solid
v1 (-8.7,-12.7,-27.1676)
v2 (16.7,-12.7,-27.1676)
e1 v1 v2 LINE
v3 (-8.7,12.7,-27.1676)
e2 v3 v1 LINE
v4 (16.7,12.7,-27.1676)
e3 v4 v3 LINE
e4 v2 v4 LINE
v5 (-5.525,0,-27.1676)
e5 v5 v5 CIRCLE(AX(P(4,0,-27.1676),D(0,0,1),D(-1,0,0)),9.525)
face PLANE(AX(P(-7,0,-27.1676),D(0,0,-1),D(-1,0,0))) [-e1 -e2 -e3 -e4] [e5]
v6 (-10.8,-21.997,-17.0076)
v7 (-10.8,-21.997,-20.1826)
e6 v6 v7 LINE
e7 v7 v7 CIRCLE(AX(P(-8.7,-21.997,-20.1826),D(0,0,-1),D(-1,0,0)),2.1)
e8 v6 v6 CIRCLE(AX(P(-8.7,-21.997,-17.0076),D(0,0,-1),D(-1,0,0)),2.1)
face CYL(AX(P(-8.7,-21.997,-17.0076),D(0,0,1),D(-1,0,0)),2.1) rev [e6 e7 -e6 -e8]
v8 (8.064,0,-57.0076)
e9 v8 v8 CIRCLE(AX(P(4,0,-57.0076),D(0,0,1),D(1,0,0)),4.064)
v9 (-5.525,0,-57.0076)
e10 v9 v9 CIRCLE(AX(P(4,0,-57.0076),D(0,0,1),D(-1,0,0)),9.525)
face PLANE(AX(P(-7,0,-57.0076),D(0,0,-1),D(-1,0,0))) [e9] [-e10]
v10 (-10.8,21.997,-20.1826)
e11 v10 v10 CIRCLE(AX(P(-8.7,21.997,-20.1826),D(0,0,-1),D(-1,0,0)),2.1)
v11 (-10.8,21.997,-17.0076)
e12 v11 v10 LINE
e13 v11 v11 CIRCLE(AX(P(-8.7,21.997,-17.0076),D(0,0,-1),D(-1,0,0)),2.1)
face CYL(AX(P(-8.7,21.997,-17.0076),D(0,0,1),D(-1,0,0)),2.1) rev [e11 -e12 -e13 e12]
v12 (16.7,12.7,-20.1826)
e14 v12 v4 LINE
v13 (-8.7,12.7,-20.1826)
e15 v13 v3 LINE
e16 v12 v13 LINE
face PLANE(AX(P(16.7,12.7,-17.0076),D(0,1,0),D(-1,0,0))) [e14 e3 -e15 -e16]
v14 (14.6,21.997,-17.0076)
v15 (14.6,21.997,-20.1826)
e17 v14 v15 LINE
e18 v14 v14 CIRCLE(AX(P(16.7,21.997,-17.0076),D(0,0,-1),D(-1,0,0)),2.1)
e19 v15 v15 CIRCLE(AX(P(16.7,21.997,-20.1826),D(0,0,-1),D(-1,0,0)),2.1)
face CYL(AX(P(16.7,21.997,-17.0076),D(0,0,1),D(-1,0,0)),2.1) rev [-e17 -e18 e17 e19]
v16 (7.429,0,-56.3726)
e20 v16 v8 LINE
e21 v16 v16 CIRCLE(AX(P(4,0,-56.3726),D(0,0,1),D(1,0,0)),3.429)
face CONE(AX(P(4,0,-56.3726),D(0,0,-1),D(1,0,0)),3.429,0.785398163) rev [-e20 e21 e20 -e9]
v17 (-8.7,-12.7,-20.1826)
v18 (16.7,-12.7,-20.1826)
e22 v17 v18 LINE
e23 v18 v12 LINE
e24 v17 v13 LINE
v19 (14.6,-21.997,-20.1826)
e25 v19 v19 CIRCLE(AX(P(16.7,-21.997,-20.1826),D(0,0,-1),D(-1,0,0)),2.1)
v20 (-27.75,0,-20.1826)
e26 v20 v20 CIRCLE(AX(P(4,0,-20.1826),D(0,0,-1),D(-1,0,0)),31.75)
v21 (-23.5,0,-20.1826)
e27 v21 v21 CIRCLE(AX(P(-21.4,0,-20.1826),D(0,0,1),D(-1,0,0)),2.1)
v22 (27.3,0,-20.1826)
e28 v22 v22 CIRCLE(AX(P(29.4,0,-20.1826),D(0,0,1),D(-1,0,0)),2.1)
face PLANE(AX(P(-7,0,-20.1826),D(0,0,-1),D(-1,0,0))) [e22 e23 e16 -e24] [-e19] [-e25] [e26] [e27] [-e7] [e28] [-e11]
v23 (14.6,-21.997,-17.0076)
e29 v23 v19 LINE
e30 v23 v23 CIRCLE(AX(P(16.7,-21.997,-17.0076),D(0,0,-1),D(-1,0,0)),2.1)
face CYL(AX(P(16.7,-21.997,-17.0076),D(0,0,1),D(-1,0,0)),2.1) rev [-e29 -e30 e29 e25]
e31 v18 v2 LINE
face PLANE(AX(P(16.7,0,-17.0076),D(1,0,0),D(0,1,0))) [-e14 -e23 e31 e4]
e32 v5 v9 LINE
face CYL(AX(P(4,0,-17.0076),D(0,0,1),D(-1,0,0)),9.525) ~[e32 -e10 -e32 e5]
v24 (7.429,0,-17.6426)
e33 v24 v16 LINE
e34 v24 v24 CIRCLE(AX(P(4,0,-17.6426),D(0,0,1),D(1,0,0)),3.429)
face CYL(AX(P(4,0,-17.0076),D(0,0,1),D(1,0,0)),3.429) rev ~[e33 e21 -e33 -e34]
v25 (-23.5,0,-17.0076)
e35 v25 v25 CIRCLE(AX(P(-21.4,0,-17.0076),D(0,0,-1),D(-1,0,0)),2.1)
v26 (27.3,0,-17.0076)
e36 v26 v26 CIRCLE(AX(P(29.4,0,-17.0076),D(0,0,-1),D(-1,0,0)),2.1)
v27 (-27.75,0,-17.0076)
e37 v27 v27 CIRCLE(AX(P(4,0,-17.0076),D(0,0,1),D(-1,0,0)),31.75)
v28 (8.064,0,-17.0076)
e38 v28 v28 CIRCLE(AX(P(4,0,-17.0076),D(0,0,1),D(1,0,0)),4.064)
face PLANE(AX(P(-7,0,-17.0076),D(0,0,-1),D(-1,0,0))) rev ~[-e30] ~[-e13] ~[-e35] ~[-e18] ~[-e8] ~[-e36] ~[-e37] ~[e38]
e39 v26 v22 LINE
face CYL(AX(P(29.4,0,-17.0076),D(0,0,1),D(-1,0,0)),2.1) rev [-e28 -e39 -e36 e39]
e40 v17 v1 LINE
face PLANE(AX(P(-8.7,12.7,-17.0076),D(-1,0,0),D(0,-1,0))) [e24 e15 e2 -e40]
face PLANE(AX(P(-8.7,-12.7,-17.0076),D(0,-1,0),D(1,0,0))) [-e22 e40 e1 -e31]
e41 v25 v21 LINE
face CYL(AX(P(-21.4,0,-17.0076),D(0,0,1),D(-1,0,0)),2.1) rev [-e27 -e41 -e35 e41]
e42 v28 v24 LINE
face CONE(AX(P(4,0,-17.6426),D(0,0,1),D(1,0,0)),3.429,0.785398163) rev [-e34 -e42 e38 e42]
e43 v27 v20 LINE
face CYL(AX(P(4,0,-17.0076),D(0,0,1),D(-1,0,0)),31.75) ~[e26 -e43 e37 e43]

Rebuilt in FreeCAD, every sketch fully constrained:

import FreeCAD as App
import Part
import Sketcher
Q = App.Units.Quantity


def edges_at(feature, points):
    """Names of the edges that pass closest to the given points."""
    edges = feature.Shape.Edges
    near = lambda p: min(range(len(edges)), key=lambda i: edges[i].distToShape(Part.Vertex(*p))[0])
    return sorted({f"Edge{near(p) + 1}" for p in points})

doc = App.newDocument("Part")
body = doc.addObject("PartDesign::Body", "Body")

# Sketch on XY plane
sketch1 = body.newObject("Sketcher::SketchObject", "Sketch")
sketch1.AttachmentSupport = (doc.getObject("XY_Plane"), [""])
sketch1.MapMode = "FlatFace"
sketch1.addGeometry([
    Part.Circle(App.Vector(4, 0, 0), App.Vector(0, 0, 1), 3.9492),
    Part.Circle(App.Vector(4, 0, 0), App.Vector(0, 0, 1), 3.2512),
], False)
sketch1.addConstraint([
    Sketcher.Constraint("Coincident", 1, 3, 0, 3),
    Sketcher.Constraint("PointOnObject", 0, 3, -1),
    Sketcher.Constraint("Diameter", 1, Q("0.256 in")),
    Sketcher.Constraint("Diameter", 0, 7.8984),
    Sketcher.Constraint("DistanceX", -1, 1, 0, 3, 4.0),
])
pad1 = body.newObject("PartDesign::Pad", "Pad")
pad1.Profile = sketch1
pad1.Type = "TwoLengths"
pad1.Length = 15
pad1.Length2 = Q("2.2443937 in")

# Sketch on XY plane
sketch2 = body.newObject("Sketcher::SketchObject", "Sketch001")
sketch2.AttachmentSupport = (doc.getObject("XY_Plane"), [""])
sketch2.MapMode = "FlatFace"
sketch2.AttachmentOffset = App.Placement(App.Vector(0, 0, -0.6695906 * 25.4), App.Rotation())
sketch2.addGeometry(Part.Circle(App.Vector(4, 0, 0), App.Vector(0, 0, 1), 9.525), False)
sketch2.addConstraint([
    Sketcher.Constraint("PointOnObject", 0, 3, -1),
    Sketcher.Constraint("Diameter", 0, Q("0.75 in")),
    Sketcher.Constraint("DistanceX", -1, 1, 0, 3, 4.0),
])
pad2 = body.newObject("PartDesign::Pad", "Pad001")
pad2.Profile = sketch2
pad2.Length = Q("1.5748031 in")
pad2.Reversed = True

# Sketch on XY plane
sketch3 = body.newObject("Sketcher::SketchObject", "Sketch002")
sketch3.AttachmentSupport = (doc.getObject("XY_Plane"), [""])
sketch3.MapMode = "FlatFace"
sketch3.AttachmentOffset = App.Placement(App.Vector(0, 0, -0.6695906 * 25.4), App.Rotation())
sketch3.addGeometry([
    Part.LineSegment(App.Vector(16.7, 12.7, 0), App.Vector(16.7, -12.7, 0)),
    Part.LineSegment(App.Vector(16.7, -12.7, 0), App.Vector(-8.7, -12.7, 0)),
    Part.LineSegment(App.Vector(-8.7, -12.7, 0), App.Vector(-8.7, 12.7, 0)),
    Part.LineSegment(App.Vector(-8.7, 12.7, 0), App.Vector(16.7, 12.7, 0)),
], False)
sketch3.addConstraint([
    Sketcher.Constraint("Coincident", 0, 2, 1, 1),
    Sketcher.Constraint("Coincident", 1, 2, 2, 1),
    Sketcher.Constraint("Coincident", 2, 2, 3, 1),
    Sketcher.Constraint("Coincident", 3, 2, 0, 1),
    Sketcher.Constraint("Vertical", 0),
    Sketcher.Constraint("Horizontal", 1),
    Sketcher.Constraint("Vertical", 2),
    Sketcher.Constraint("Horizontal", 3),
    Sketcher.Constraint("Equal", 3, 0),
    Sketcher.Constraint("DistanceX", 1, 2, 1, 1, Q("1 in")),
    Sketcher.Constraint("DistanceY", 0, 2, -1, 1, Q("0.5 in")),
    Sketcher.Constraint("DistanceX", -1, 1, 0, 2, 16.7),
])
pad3 = body.newObject("PartDesign::Pad", "Pad002")
pad3.Profile = sketch3
pad3.Length = Q("0.4 in")
pad3.Reversed = True

# Sketch on XY plane
sketch4 = body.newObject("Sketcher::SketchObject", "Sketch003")
sketch4.AttachmentSupport = (doc.getObject("XY_Plane"), [""])
sketch4.MapMode = "FlatFace"
sketch4.AttachmentOffset = App.Placement(App.Vector(0, 0, -0.6695906 * 25.4), App.Rotation())
sketch4.addGeometry([
    Part.Circle(App.Vector(4, 0, 0), App.Vector(0, 0, 1), 31.75),  # 0
    Part.LineSegment(App.Vector(-8.7, 12.7, 0), App.Vector(-8.7, -12.7, 0)),  # 1
    Part.LineSegment(App.Vector(-8.7, -12.7, 0), App.Vector(16.7, -12.7, 0)),  # 2
    Part.LineSegment(App.Vector(16.7, -12.7, 0), App.Vector(16.7, 12.7, 0)),  # 3
    Part.LineSegment(App.Vector(16.7, 12.7, 0), App.Vector(-8.7, 12.7, 0)),  # 4
    Part.Circle(App.Vector(29.4, 0, 0), App.Vector(0, 0, 1), 2.1),  # 5
    Part.Circle(App.Vector(-21.4, 0, 0), App.Vector(0, 0, 1), 2.1),  # 6
    Part.Circle(App.Vector(16.7, 21.997, 0), App.Vector(0, 0, 1), 2.1),  # 7
    Part.Circle(App.Vector(-8.7, 21.997, 0), App.Vector(0, 0, 1), 2.1),  # 8
    Part.Circle(App.Vector(16.7, -21.997, 0), App.Vector(0, 0, 1), 2.1),  # 9
    Part.Circle(App.Vector(-8.7, -21.997, 0), App.Vector(0, 0, 1), 2.1),  # 10
], False)
sketch4.addConstraint([
    Sketcher.Constraint("Coincident", 1, 2, 2, 1),
    Sketcher.Constraint("Coincident", 2, 2, 3, 1),
    Sketcher.Constraint("Coincident", 3, 2, 4, 1),
    Sketcher.Constraint("Coincident", 4, 2, 1, 1),
    Sketcher.Constraint("Vertical", 1),
    Sketcher.Constraint("Horizontal", 2),
    Sketcher.Constraint("Vertical", 3),
    Sketcher.Constraint("Horizontal", 4),
    Sketcher.Constraint("Equal", 5, 6),
    Sketcher.Constraint("Equal", 6, 7),
    Sketcher.Constraint("Equal", 7, 8),
    Sketcher.Constraint("Equal", 8, 9),
    Sketcher.Constraint("Equal", 9, 10),
    Sketcher.Constraint("Symmetric", 7, 3, 9, 3, -1),
    Sketcher.Constraint("Symmetric", 8, 3, 10, 3, -1),
    Sketcher.Constraint("PointOnObject", 0, 3, -1),
    Sketcher.Constraint("PointOnObject", 5, 3, -1),
    Sketcher.Constraint("PointOnObject", 6, 3, -1),
    Sketcher.Constraint("Horizontal", 7, 3, 8, 3),
    Sketcher.Constraint("Vertical", 10, 3, 1, 2),
    Sketcher.Constraint("Vertical", 9, 3, 2, 2),
    Sketcher.Constraint("Equal", 4, 1),
    Sketcher.Constraint("Diameter", 0, Q("2.5 in")),
    Sketcher.Constraint("DistanceX", 2, 1, 2, 2, Q("1 in")),
    Sketcher.Constraint("DistanceX", 0, 3, 5, 3, Q("1 in")),
    Sketcher.Constraint("DistanceX", 6, 3, 0, 3, Q("1 in")),
    Sketcher.Constraint("Diameter", 5, 4.2),
    Sketcher.Constraint("DistanceY", 1, 2, -1, 1, Q("0.5 in")),
    Sketcher.Constraint("DistanceX", 0, 3, 7, 3, Q("0.5 in")),
    Sketcher.Constraint("DistanceX", -1, 1, 0, 3, 4.0),
    Sketcher.Constraint("DistanceY", -1, 1, 7, 3, 21.997),
])
pad4 = body.newObject("PartDesign::Pad", "Pad003")
pad4.Profile = sketch4
pad4.Length = Q("0.125 in")
pad4.Reversed = True

# Sketch on XY plane
sketch5 = body.newObject("Sketcher::SketchObject", "Sketch004")
sketch5.AttachmentSupport = (doc.getObject("XY_Plane"), [""])
sketch5.MapMode = "FlatFace"
sketch5.AttachmentOffset = App.Placement(App.Vector(0, 0, 15), App.Rotation())
sketch5.addGeometry([
    Part.LineSegment(App.Vector(-7.6012, -6.9197, 0), App.Vector(12.0047, -6.9197, 0)),
    Part.LineSegment(App.Vector(12.0047, -6.9197, 0), App.Vector(12.0047, 5.9412, 0)),
    Part.LineSegment(App.Vector(12.0047, 5.9412, 0), App.Vector(-7.6012, 5.9412, 0)),
    Part.LineSegment(App.Vector(-7.6012, 5.9412, 0), App.Vector(-7.6012, -6.9197, 0)),
], False)
sketch5.addConstraint([
    Sketcher.Constraint("Coincident", 0, 2, 1, 1),
    Sketcher.Constraint("Coincident", 1, 2, 2, 1),
    Sketcher.Constraint("Coincident", 2, 2, 3, 1),
    Sketcher.Constraint("Coincident", 3, 2, 0, 1),
    Sketcher.Constraint("Horizontal", 0),
    Sketcher.Constraint("Vertical", 1),
    Sketcher.Constraint("Horizontal", 2),
    Sketcher.Constraint("Vertical", 3),
    Sketcher.Constraint("DistanceX", 0, 1, 0, 2, Q("0.7718898 in")),
    Sketcher.Constraint("DistanceY", 1, 1, 1, 2, 12.861),
    Sketcher.Constraint("DistanceY", -1, 1, 1, 2, Q("0.2339 in")),
    Sketcher.Constraint("DistanceX", -1, 1, 0, 2, 12.0047),
])
pocket1 = body.newObject("PartDesign::Pocket", "Pocket")
pocket1.Profile = sketch5
pocket1.Length = 32.0076

# Sketch on XY plane
sketch6 = body.newObject("Sketcher::SketchObject", "Sketch005")
sketch6.AttachmentSupport = (doc.getObject("XY_Plane"), [""])
sketch6.MapMode = "FlatFace"
sketch6.AttachmentOffset = App.Placement(App.Vector(0, 0, -0.6695906 * 25.4), App.Rotation())
sketch6.addGeometry(Part.Circle(App.Vector(4, 0, 0), App.Vector(0, 0, 1), 3.429), False)
sketch6.addConstraint([
    Sketcher.Constraint("PointOnObject", 0, 3, -1),
    Sketcher.Constraint("Diameter", 0, Q("0.27 in")),
    Sketcher.Constraint("DistanceX", -1, 1, 0, 3, 4.0),
])
pocket2 = body.newObject("PartDesign::Pocket", "Pocket001")
pocket2.Profile = sketch6
pocket2.Length = Q("1.5748031 in")
doc.recompute()

chamfer = body.newObject("PartDesign::Chamfer", "Chamfer")
chamfer.Base = (pocket2, edges_at(pocket2, [(0.571, 0, -17.008), (0.571, 0, -57.008)]))
chamfer.Size = Q("0.025 in")

doc.recompute()
